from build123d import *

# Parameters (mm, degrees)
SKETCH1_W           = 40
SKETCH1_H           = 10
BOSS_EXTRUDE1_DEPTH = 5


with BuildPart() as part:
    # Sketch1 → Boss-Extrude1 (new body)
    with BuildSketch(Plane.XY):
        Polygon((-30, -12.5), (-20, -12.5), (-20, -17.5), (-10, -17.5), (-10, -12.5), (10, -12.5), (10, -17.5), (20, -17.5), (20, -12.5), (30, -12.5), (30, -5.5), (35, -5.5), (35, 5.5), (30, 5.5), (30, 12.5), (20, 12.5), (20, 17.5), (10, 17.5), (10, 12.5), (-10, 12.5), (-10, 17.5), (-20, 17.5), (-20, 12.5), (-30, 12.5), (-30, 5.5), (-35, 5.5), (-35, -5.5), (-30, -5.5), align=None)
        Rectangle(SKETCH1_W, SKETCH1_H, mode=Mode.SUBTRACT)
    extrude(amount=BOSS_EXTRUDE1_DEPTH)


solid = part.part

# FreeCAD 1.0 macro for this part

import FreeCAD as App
import Part
import Sketcher
Q = App.Units.Quantity

doc = App.newDocument("Part")
body = doc.addObject("PartDesign::Body", "Body")

sketch1 = body.newObject("Sketcher::SketchObject", "Sketch")
sketch1.AttachmentSupport = (doc.getObject("XY_Plane"), [""])
sketch1.MapMode = "FlatFace"
sketch1.addGeometry(Part.LineSegment(App.Vector(-30, -12, 0), App.Vector(-20, -12, 0)), False)
sketch1.addGeometry(Part.LineSegment(App.Vector(-20, -12, 0), App.Vector(-20, -18, 0)), False)
sketch1.addGeometry(Part.LineSegment(App.Vector(-20, -18, 0), App.Vector(-10, -18, 0)), False)
sketch1.addGeometry(Part.LineSegment(App.Vector(-10, -18, 0), App.Vector(-10, -12, 0)), False)
sketch1.addGeometry(Part.LineSegment(App.Vector(-10, -12, 0), App.Vector(10, -12, 0)), False)
sketch1.addGeometry(Part.LineSegment(App.Vector(10, -12, 0), App.Vector(10, -18, 0)), False)
sketch1.addGeometry(Part.LineSegment(App.Vector(10, -18, 0), App.Vector(20, -18, 0)), False)
sketch1.addGeometry(Part.LineSegment(App.Vector(20, -18, 0), App.Vector(20, -12, 0)), False)
sketch1.addGeometry(Part.LineSegment(App.Vector(20, -12, 0), App.Vector(30, -12, 0)), False)
sketch1.addGeometry(Part.LineSegment(App.Vector(30, -12, 0), App.Vector(30, -6, 0)), False)
sketch1.addGeometry(Part.LineSegment(App.Vector(30, -6, 0), App.Vector(35, -6, 0)), False)
sketch1.addGeometry(Part.LineSegment(App.Vector(35, -6, 0), App.Vector(35, 6, 0)), False)
sketch1.addGeometry(Part.LineSegment(App.Vector(35, 6, 0), App.Vector(30, 6, 0)), False)
sketch1.addGeometry(Part.LineSegment(App.Vector(30, 6, 0), App.Vector(30, 12, 0)), False)
sketch1.addGeometry(Part.LineSegment(App.Vector(30, 12, 0), App.Vector(20, 12, 0)), False)
sketch1.addGeometry(Part.LineSegment(App.Vector(20, 12, 0), App.Vector(20, 18, 0)), False)
sketch1.addGeometry(Part.LineSegment(App.Vector(20, 18, 0), App.Vector(10, 18, 0)), False)
sketch1.addGeometry(Part.LineSegment(App.Vector(10, 18, 0), App.Vector(10, 12, 0)), False)
sketch1.addGeometry(Part.LineSegment(App.Vector(10, 12, 0), App.Vector(-10, 12, 0)), False)
sketch1.addGeometry(Part.LineSegment(App.Vector(-10, 12, 0), App.Vector(-10, 18, 0)), False)
sketch1.addGeometry(Part.LineSegment(App.Vector(-10, 18, 0), App.Vector(-20, 18, 0)), False)
sketch1.addGeometry(Part.LineSegment(App.Vector(-20, 18, 0), App.Vector(-20, 12, 0)), False)
sketch1.addGeometry(Part.LineSegment(App.Vector(-20, 12, 0), App.Vector(-30, 12, 0)), False)
sketch1.addGeometry(Part.LineSegment(App.Vector(-30, 12, 0), App.Vector(-30, 6, 0)), False)
sketch1.addGeometry(Part.LineSegment(App.Vector(-30, 6, 0), App.Vector(-35, 6, 0)), False)
sketch1.addGeometry(Part.LineSegment(App.Vector(-35, 6, 0), App.Vector(-35, -6, 0)), False)
sketch1.addGeometry(Part.LineSegment(App.Vector(-35, -6, 0), App.Vector(-30, -6, 0)), False)
sketch1.addGeometry(Part.LineSegment(App.Vector(-30, -6, 0), App.Vector(-30, -12, 0)), False)
sketch1.addGeometry(Part.LineSegment(App.Vector(20, -5, 0), App.Vector(-20, -5, 0)), False)
sketch1.addGeometry(Part.LineSegment(App.Vector(-20, -5, 0), App.Vector(-20, 5, 0)), False)
sketch1.addGeometry(Part.LineSegment(App.Vector(-20, 5, 0), App.Vector(20, 5, 0)), False)
sketch1.addGeometry(Part.LineSegment(App.Vector(20, 5, 0), App.Vector(20, -5, 0)), False)
sketch1.addConstraint(Sketcher.Constraint("Coincident", 0, 2, 1, 1))
sketch1.addConstraint(Sketcher.Constraint("Coincident", 1, 2, 2, 1))
sketch1.addConstraint(Sketcher.Constraint("Coincident", 2, 2, 3, 1))
sketch1.addConstraint(Sketcher.Constraint("Coincident", 3, 2, 4, 1))
sketch1.addConstraint(Sketcher.Constraint("Coincident", 4, 2, 5, 1))
sketch1.addConstraint(Sketcher.Constraint("Coincident", 5, 2, 6, 1))
sketch1.addConstraint(Sketcher.Constraint("Coincident", 6, 2, 7, 1))
sketch1.addConstraint(Sketcher.Constraint("Coincident", 7, 2, 8, 1))
sketch1.addConstraint(Sketcher.Constraint("Coincident", 8, 2, 9, 1))
sketch1.addConstraint(Sketcher.Constraint("Coincident", 9, 2, 10, 1))
sketch1.addConstraint(Sketcher.Constraint("Coincident", 10, 2, 11, 1))
sketch1.addConstraint(Sketcher.Constraint("Coincident", 11, 2, 12, 1))
sketch1.addConstraint(Sketcher.Constraint("Coincident", 12, 2, 13, 1))
sketch1.addConstraint(Sketcher.Constraint("Coincident", 13, 2, 14, 1))
sketch1.addConstraint(Sketcher.Constraint("Coincident", 14, 2, 15, 1))
sketch1.addConstraint(Sketcher.Constraint("Coincident", 15, 2, 16, 1))
sketch1.addConstraint(Sketcher.Constraint("Coincident", 16, 2, 17, 1))
sketch1.addConstraint(Sketcher.Constraint("Coincident", 17, 2, 18, 1))
sketch1.addConstraint(Sketcher.Constraint("Coincident", 18, 2, 19, 1))
sketch1.addConstraint(Sketcher.Constraint("Coincident", 19, 2, 20, 1))
sketch1.addConstraint(Sketcher.Constraint("Coincident", 20, 2, 21, 1))
sketch1.addConstraint(Sketcher.Constraint("Coincident", 21, 2, 22, 1))
sketch1.addConstraint(Sketcher.Constraint("Coincident", 22, 2, 23, 1))
sketch1.addConstraint(Sketcher.Constraint("Coincident", 23, 2, 24, 1))
sketch1.addConstraint(Sketcher.Constraint("Coincident", 24, 2, 25, 1))
sketch1.addConstraint(Sketcher.Constraint("Coincident", 25, 2, 26, 1))
sketch1.addConstraint(Sketcher.Constraint("Coincident", 26, 2, 27, 1))
sketch1.addConstraint(Sketcher.Constraint("Coincident", 27, 2, 0, 1))
sketch1.addConstraint(Sketcher.Constraint("Coincident", 28, 2, 29, 1))
sketch1.addConstraint(Sketcher.Constraint("Coincident", 29, 2, 30, 1))
sketch1.addConstraint(Sketcher.Constraint("Coincident", 30, 2, 31, 1))
sketch1.addConstraint(Sketcher.Constraint("Coincident", 31, 2, 28, 1))
sketch1.addConstraint(Sketcher.Constraint("Horizontal", 0))
sketch1.addConstraint(Sketcher.Constraint("Vertical", 1))
sketch1.addConstraint(Sketcher.Constraint("Horizontal", 2))
sketch1.addConstraint(Sketcher.Constraint("Vertical", 3))
sketch1.addConstraint(Sketcher.Constraint("Horizontal", 4))
sketch1.addConstraint(Sketcher.Constraint("Vertical", 5))
sketch1.addConstraint(Sketcher.Constraint("Horizontal", 6))
sketch1.addConstraint(Sketcher.Constraint("Vertical", 7))
sketch1.addConstraint(Sketcher.Constraint("Horizontal", 8))
sketch1.addConstraint(Sketcher.Constraint("Vertical", 9))
sketch1.addConstraint(Sketcher.Constraint("Horizontal", 10))
sketch1.addConstraint(Sketcher.Constraint("Vertical", 11))
sketch1.addConstraint(Sketcher.Constraint("Horizontal", 12))
sketch1.addConstraint(Sketcher.Constraint("Vertical", 13))
sketch1.addConstraint(Sketcher.Constraint("Horizontal", 14))
sketch1.addConstraint(Sketcher.Constraint("Vertical", 15))
sketch1.addConstraint(Sketcher.Constraint("Horizontal", 16))
sketch1.addConstraint(Sketcher.Constraint("Vertical", 17))
sketch1.addConstraint(Sketcher.Constraint("Horizontal", 18))
sketch1.addConstraint(Sketcher.Constraint("Vertical", 19))
sketch1.addConstraint(Sketcher.Constraint("Horizontal", 20))
sketch1.addConstraint(Sketcher.Constraint("Vertical", 21))
sketch1.addConstraint(Sketcher.Constraint("Horizontal", 22))
sketch1.addConstraint(Sketcher.Constraint("Vertical", 23))
sketch1.addConstraint(Sketcher.Constraint("Horizontal", 24))
sketch1.addConstraint(Sketcher.Constraint("Vertical", 25))
sketch1.addConstraint(Sketcher.Constraint("Horizontal", 26))
sketch1.addConstraint(Sketcher.Constraint("Vertical", 27))
sketch1.addConstraint(Sketcher.Constraint("Horizontal", 28))
sketch1.addConstraint(Sketcher.Constraint("Vertical", 29))
sketch1.addConstraint(Sketcher.Constraint("Horizontal", 30))
sketch1.addConstraint(Sketcher.Constraint("Vertical", 31))
sketch1.addConstraint(Sketcher.Constraint("Symmetric", 0, 2, 14, 2, -1, 1))
sketch1.addConstraint(Sketcher.Constraint("Symmetric", 2, 2, 16, 2, -1, 1))
sketch1.addConstraint(Sketcher.Constraint("Symmetric", 4, 2, 18, 2, -1, 1))
sketch1.addConstraint(Sketcher.Constraint("Symmetric", 6, 2, 20, 2, -1, 1))
sketch1.addConstraint(Sketcher.Constraint("Symmetric", 8, 2, 22, 2, -1, 1))
sketch1.addConstraint(Sketcher.Constraint("Symmetric", 10, 2, 24, 2, -1, 1))
sketch1.addConstraint(Sketcher.Constraint("Symmetric", 12, 2, 26, 2, -1, 1))
sketch1.addConstraint(Sketcher.Constraint("Symmetric", 28, 2, 30, 2, -1, 1))
sketch1.addConstraint(Sketcher.Constraint("Symmetric", 2, 2, 5, 2, -2))
sketch1.addConstraint(Sketcher.Constraint("Symmetric", 0, 2, 7, 2, -2))
sketch1.addConstraint(Sketcher.Constraint("Symmetric", 12, 2, 23, 2, -2))
sketch1.addConstraint(Sketcher.Constraint("Horizontal", 0, 2, 3, 2))
sketch1.addConstraint(Sketcher.Constraint("Vertical", 21, 2, 28, 2))
sketch1.addConstraint(Sketcher.Constraint("Equal", 0, 2))
sketch1.addConstraint(Sketcher.Constraint("Equal", 26, 1))
sketch1.addConstraint(Sketcher.Constraint("Equal", 22, 29))
sketch1.addConstraint(Sketcher.Constraint("DistanceX", 0, 1, 0, 2, Q("10 mm")))
sketch1.addConstraint(Sketcher.Constraint("DistanceX", 4, 1, 4, 2, Q("20 mm")))
sketch1.addConstraint(Sketcher.Constraint("DistanceX", 10, 1, 10, 2, Q("5 mm")))
sketch1.addConstraint(Sketcher.Constraint("DistanceY", 9, 1, 9, 2, Q("7 mm")))
sketch1.addConstraint(Sketcher.Constraint("DistanceY", 11, 1, 11, 2, Q("11 mm")))
pad1 = body.newObject("PartDesign::Pad", "Pad")
pad1.Profile = sketch1
pad1.Length = 5

doc.recompute()
